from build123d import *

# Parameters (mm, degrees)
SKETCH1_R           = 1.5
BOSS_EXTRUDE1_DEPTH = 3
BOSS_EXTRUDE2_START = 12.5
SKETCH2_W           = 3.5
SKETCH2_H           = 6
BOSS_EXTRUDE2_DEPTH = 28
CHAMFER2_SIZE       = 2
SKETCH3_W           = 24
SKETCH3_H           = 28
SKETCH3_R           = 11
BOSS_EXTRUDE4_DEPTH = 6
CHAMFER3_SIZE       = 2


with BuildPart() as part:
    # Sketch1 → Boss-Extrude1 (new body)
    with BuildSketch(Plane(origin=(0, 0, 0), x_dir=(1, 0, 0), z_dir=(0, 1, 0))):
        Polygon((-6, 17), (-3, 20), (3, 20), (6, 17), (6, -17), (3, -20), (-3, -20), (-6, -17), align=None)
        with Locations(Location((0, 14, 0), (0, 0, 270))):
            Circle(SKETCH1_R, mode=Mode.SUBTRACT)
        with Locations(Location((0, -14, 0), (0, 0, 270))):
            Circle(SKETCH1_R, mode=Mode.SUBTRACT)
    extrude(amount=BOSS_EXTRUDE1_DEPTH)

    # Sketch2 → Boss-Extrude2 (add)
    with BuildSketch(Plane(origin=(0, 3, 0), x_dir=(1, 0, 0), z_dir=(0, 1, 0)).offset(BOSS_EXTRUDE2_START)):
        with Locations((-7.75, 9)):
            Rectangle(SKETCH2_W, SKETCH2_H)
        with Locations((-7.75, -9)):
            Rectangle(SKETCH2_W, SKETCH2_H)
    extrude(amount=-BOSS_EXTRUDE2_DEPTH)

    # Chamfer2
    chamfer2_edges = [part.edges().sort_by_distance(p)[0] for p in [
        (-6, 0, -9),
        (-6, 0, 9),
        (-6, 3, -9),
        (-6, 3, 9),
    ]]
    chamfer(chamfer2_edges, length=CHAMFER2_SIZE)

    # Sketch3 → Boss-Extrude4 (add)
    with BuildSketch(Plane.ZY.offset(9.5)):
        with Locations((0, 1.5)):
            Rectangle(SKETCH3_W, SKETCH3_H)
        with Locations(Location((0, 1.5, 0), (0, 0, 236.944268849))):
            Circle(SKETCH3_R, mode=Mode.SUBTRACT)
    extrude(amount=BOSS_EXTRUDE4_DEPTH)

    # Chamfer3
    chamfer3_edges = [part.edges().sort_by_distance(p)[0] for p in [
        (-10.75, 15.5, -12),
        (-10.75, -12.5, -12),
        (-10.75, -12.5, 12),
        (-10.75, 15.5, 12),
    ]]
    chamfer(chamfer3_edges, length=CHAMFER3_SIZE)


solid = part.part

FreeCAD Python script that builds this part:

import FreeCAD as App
import Part
import Sketcher

V = App.Vector
Q = App.Units.Quantity


def edges_at(feature, points):
    """Names of the edges that pass closest to the given points."""
    edges = feature.Shape.Edges
    near = lambda p: min(range(len(edges)), key=lambda i: edges[i].distToShape(Part.Vertex(*p))[0])
    return sorted({f"Edge{near(p) + 1}" for p in points})

doc = App.newDocument("Part")
params = doc.addObject("Spreadsheet::Sheet", "Params")
for row, (alias, value) in enumerate([
    ("sketch1_diameter", "3 mm"),
    ("sketch1_width", "6 mm"),
    ("sketch1_height", "34 mm"),
    ("pad1_length", "3 mm"),
    ("sketch2_height", "6 mm"),
    ("sketch2_width", "3.5 mm"),
    ("pad2_length", "28 mm"),
    ("chamfer_size", "2 mm"),
    ("sketch3_diameter", "22 mm"),
    ("sketch3_width", "28 mm"),
    ("sketch3_height", "24 mm"),
    ("pad3_length", "6 mm"),
    ("chamfer2_size", "2 mm"),
], start=1):
    params.set(f"A{row}", alias)
    params.set(f"B{row}", "=" + value)
    params.setAlias(f"B{row}", alias)

body = doc.addObject("PartDesign::Body", "Body")

# Sketch on XZ plane
sketch1 = body.newObject("Sketcher::SketchObject", "Sketch")
sketch1.AttachmentSupport = (doc.getObject("XZ_Plane"), [""])
sketch1.MapMode = "FlatFace"
sketch1.addGeometry(Part.LineSegment(V(-3, -20, 0), V(-6, -17, 0)), False)
sketch1.addGeometry(Part.LineSegment(V(-6, -17, 0), V(-6, 17, 0)), False)
sketch1.addGeometry(Part.LineSegment(V(-6, 17, 0), V(-3, 20, 0)), False)
sketch1.addGeometry(Part.LineSegment(V(-3, 20, 0), V(3, 20, 0)), False)
sketch1.addGeometry(Part.LineSegment(V(3, 20, 0), V(6, 17, 0)), False)
sketch1.addGeometry(Part.LineSegment(V(6, 17, 0), V(6, -17, 0)), False)
sketch1.addGeometry(Part.LineSegment(V(6, -17, 0), V(3, -20, 0)), False)
sketch1.addGeometry(Part.LineSegment(V(3, -20, 0), V(-3, -20, 0)), False)
sketch1.addGeometry(Part.Circle(V(0, 14, 0), V(0, 0, 1), 1.5), False)
sketch1.addGeometry(Part.Circle(V(0, -14, 0), V(0, 0, 1), 1.5), False)
sketch1.addConstraint(Sketcher.Constraint("Coincident", 0, 2, 1, 1))
sketch1.addConstraint(Sketcher.Constraint("Coincident", 1, 2, 2, 1))
sketch1.addConstraint(Sketcher.Constraint("Coincident", 2, 2, 3, 1))
sketch1.addConstraint(Sketcher.Constraint("Coincident", 3, 2, 4, 1))
sketch1.addConstraint(Sketcher.Constraint("Coincident", 4, 2, 5, 1))
sketch1.addConstraint(Sketcher.Constraint("Coincident", 5, 2, 6, 1))
sketch1.addConstraint(Sketcher.Constraint("Coincident", 6, 2, 7, 1))
sketch1.addConstraint(Sketcher.Constraint("Coincident", 7, 2, 0, 1))
sketch1.addConstraint(Sketcher.Constraint("Vertical", 1))
sketch1.addConstraint(Sketcher.Constraint("Horizontal", 3))
sketch1.addConstraint(Sketcher.Constraint("Vertical", 5))
sketch1.addConstraint(Sketcher.Constraint("Horizontal", 7))
sketch1.addConstraint(Sketcher.Constraint("Equal", 8, 9))
sketch1.addConstraint(Sketcher.Constraint("Symmetric", 8, 3, 9, 3, -1, 1))
sketch1.addConstraint(Sketcher.Constraint("Symmetric", 0, 2, 4, 2, -1, 1))
sketch1.addConstraint(Sketcher.Constraint("Symmetric", 2, 2, 6, 2, -1, 1))
sketch1.addConstraint(Sketcher.Constraint("PointOnObject", 8, 3, -2))
sketch1.addConstraint(Sketcher.Constraint("Perpendicular", 0, 2))
sketch1.addConstraint(Sketcher.Constraint("Perpendicular", 2, 4))
sketch1.addConstraint(Sketcher.Constraint("Perpendicular", 4, 6))
sketch1.addConstraint(Sketcher.Constraint("Horizontal", 1, 2, 4, 2))
sketch1.addConstraint(Sketcher.Constraint("Vertical", 3, 2, 6, 2))
sketch1.addConstraint(Sketcher.Constraint("Diameter", 8, Q("3 mm")))
sketch1.addConstraint(Sketcher.Constraint("DistanceX", 3, 1, 3, 2, Q("6 mm")))
sketch1.addConstraint(Sketcher.Constraint("DistanceY", 1, 1, 1, 2, Q("34 mm")))
sketch1.addConstraint(Sketcher.Constraint("DistanceY", -1, 1, 8, 3, Q("14 mm")))
sketch1.addConstraint(Sketcher.Constraint("DistanceX", 0, 2, -1, 1, Q("6 mm")))
sketch1.setExpression("Constraints[22]", "Params.sketch1_diameter")
sketch1.setExpression("Constraints[23]", "Params.sketch1_width")
sketch1.setExpression("Constraints[24]", "Params.sketch1_height")
pad1 = body.newObject("PartDesign::Pad", "Pad")
pad1.Profile = sketch1
pad1.setExpression("Length", "Params.pad1_length")
pad1.Reversed = True

# Sketch on XZ plane
sketch2 = body.newObject("Sketcher::SketchObject", "Sketch001")
sketch2.AttachmentSupport = (doc.getObject("XZ_Plane"), [""])
sketch2.MapMode = "FlatFace"
sketch2.AttachmentOffset = App.Placement(V(0, 0, -15.5), App.Rotation())
sketch2.addGeometry(Part.LineSegment(V(-9.5, -12, 0), V(-9.5, -6, 0)), False)
sketch2.addGeometry(Part.LineSegment(V(-9.5, -6, 0), V(-6, -6, 0)), False)
sketch2.addGeometry(Part.LineSegment(V(-6, -6, 0), V(-6, -12, 0)), False)
sketch2.addGeometry(Part.LineSegment(V(-6, -12, 0), V(-9.5, -12, 0)), False)
sketch2.addGeometry(Part.LineSegment(V(-9.5, 6, 0), V(-9.5, 12, 0)), False)
sketch2.addGeometry(Part.LineSegment(V(-9.5, 12, 0), V(-6, 12, 0)), False)
sketch2.addGeometry(Part.LineSegment(V(-6, 12, 0), V(-6, 6, 0)), False)
sketch2.addGeometry(Part.LineSegment(V(-6, 6, 0), V(-9.5, 6, 0)), False)
sketch2.addConstraint(Sketcher.Constraint("Coincident", 0, 2, 1, 1))
sketch2.addConstraint(Sketcher.Constraint("Coincident", 1, 2, 2, 1))
sketch2.addConstraint(Sketcher.Constraint("Coincident", 2, 2, 3, 1))
sketch2.addConstraint(Sketcher.Constraint("Coincident", 3, 2, 0, 1))
sketch2.addConstraint(Sketcher.Constraint("Coincident", 4, 2, 5, 1))
sketch2.addConstraint(Sketcher.Constraint("Coincident", 5, 2, 6, 1))
sketch2.addConstraint(Sketcher.Constraint("Coincident", 6, 2, 7, 1))
sketch2.addConstraint(Sketcher.Constraint("Coincident", 7, 2, 4, 1))
sketch2.addConstraint(Sketcher.Constraint("Vertical", 0))
sketch2.addConstraint(Sketcher.Constraint("Horizontal", 1))
sketch2.addConstraint(Sketcher.Constraint("Vertical", 2))
sketch2.addConstraint(Sketcher.Constraint("Horizontal", 3))
sketch2.addConstraint(Sketcher.Constraint("Vertical", 4))
sketch2.addConstraint(Sketcher.Constraint("Horizontal", 5))
sketch2.addConstraint(Sketcher.Constraint("Vertical", 6))
sketch2.addConstraint(Sketcher.Constraint("Horizontal", 7))
sketch2.addConstraint(Sketcher.Constraint("Symmetric", 3, 2, 4, 2, -1))
sketch2.addConstraint(Sketcher.Constraint("Symmetric", 1, 2, 6, 2, -1))
sketch2.addConstraint(Sketcher.Constraint("DistanceY", 0, 1, 0, 2, Q("6 mm")))
sketch2.addConstraint(Sketcher.Constraint("DistanceX", 1, 1, 1, 2, Q("3.5 mm")))
sketch2.addConstraint(Sketcher.Constraint("DistanceY", 0, 2, -1, 1, Q("6 mm")))
sketch2.addConstraint(Sketcher.Constraint("DistanceX", 1, 2, -1, 1, Q("6 mm")))
sketch2.setExpression("Constraints[18]", "Params.sketch2_height")
sketch2.setExpression("Constraints[19]", "Params.sketch2_width")
pad2 = body.newObject("PartDesign::Pad", "Pad001")
pad2.Profile = sketch2
pad2.setExpression("Length", "Params.pad2_length")
doc.recompute()

chamfer = body.newObject("PartDesign::Chamfer", "Chamfer")
chamfer.Base = (pad2, edges_at(pad2, [
    (-6, 0, -9),
    (-6, 0, 9),
    (-6, 3, -9),
    (-6, 3, 9),
]))
chamfer.setExpression("Size", "Params.chamfer_size")

# Sketch on YZ plane
sketch3 = body.newObject("Sketcher::SketchObject", "Sketch002")
sketch3.AttachmentSupport = (doc.getObject("YZ_Plane"), [""])
sketch3.MapMode = "FlatFace"
sketch3.AttachmentOffset = App.Placement(V(0, 0, -9.5), App.Rotation())
sketch3.addGeometry(Part.LineSegment(V(16, -12, 0), V(-12, -12, 0)), False)
sketch3.addGeometry(Part.LineSegment(V(-12, -12, 0), V(-12, 12, 0)), False)
sketch3.addGeometry(Part.LineSegment(V(-12, 12, 0), V(16, 12, 0)), False)
sketch3.addGeometry(Part.LineSegment(V(16, 12, 0), V(16, -12, 0)), False)
sketch3.addGeometry(Part.Circle(V(2, 0, 0), V(0, 0, 1), 11), False)
sketch3.addConstraint(Sketcher.Constraint("Coincident", 0, 2, 1, 1))
sketch3.addConstraint(Sketcher.Constraint("Coincident", 1, 2, 2, 1))
sketch3.addConstraint(Sketcher.Constraint("Coincident", 2, 2, 3, 1))
sketch3.addConstraint(Sketcher.Constraint("Coincident", 3, 2, 0, 1))
sketch3.addConstraint(Sketcher.Constraint("Horizontal", 0))
sketch3.addConstraint(Sketcher.Constraint("Vertical", 1))
sketch3.addConstraint(Sketcher.Constraint("Horizontal", 2))
sketch3.addConstraint(Sketcher.Constraint("Vertical", 3))
sketch3.addConstraint(Sketcher.Constraint("PointOnObject", 4, 3, -1))
sketch3.addConstraint(Sketcher.Constraint("Diameter", 4, Q("22 mm")))
sketch3.addConstraint(Sketcher.Constraint("DistanceX", 0, 2, 0, 1, Q("28 mm")))
sketch3.addConstraint(Sketcher.Constraint("DistanceY", 1, 1, 1, 2, Q("24 mm")))
sketch3.addConstraint(Sketcher.Constraint("DistanceY", 0, 2, -1, 1, Q("12 mm")))
sketch3.addConstraint(Sketcher.Constraint("DistanceX", 0, 2, 4, 3, Q("14 mm")))
sketch3.addConstraint(Sketcher.Constraint("DistanceX", -1, 1, 4, 3, Q("1.5 mm")))
sketch3.setExpression("Constraints[9]", "Params.sketch3_diameter")
sketch3.setExpression("Constraints[10]", "Params.sketch3_width")
sketch3.setExpression("Constraints[11]", "Params.sketch3_height")
pad3 = body.newObject("PartDesign::Pad", "Pad002")
pad3.Profile = sketch3
pad3.setExpression("Length", "Params.pad3_length")
pad3.Reversed = True
doc.recompute()

chamfer2 = body.newObject("PartDesign::Chamfer", "Chamfer001")
chamfer2.Base = (pad3, edges_at(pad3, [
    (-10.75, 15.5, -12),
    (-10.75, -12.5, -12),
    (-10.75, -12.5, 12),
    (-10.75, 15.5, 12),
]))
chamfer2.setExpression("Size", "Params.chamfer2_size")

doc.recompute()
